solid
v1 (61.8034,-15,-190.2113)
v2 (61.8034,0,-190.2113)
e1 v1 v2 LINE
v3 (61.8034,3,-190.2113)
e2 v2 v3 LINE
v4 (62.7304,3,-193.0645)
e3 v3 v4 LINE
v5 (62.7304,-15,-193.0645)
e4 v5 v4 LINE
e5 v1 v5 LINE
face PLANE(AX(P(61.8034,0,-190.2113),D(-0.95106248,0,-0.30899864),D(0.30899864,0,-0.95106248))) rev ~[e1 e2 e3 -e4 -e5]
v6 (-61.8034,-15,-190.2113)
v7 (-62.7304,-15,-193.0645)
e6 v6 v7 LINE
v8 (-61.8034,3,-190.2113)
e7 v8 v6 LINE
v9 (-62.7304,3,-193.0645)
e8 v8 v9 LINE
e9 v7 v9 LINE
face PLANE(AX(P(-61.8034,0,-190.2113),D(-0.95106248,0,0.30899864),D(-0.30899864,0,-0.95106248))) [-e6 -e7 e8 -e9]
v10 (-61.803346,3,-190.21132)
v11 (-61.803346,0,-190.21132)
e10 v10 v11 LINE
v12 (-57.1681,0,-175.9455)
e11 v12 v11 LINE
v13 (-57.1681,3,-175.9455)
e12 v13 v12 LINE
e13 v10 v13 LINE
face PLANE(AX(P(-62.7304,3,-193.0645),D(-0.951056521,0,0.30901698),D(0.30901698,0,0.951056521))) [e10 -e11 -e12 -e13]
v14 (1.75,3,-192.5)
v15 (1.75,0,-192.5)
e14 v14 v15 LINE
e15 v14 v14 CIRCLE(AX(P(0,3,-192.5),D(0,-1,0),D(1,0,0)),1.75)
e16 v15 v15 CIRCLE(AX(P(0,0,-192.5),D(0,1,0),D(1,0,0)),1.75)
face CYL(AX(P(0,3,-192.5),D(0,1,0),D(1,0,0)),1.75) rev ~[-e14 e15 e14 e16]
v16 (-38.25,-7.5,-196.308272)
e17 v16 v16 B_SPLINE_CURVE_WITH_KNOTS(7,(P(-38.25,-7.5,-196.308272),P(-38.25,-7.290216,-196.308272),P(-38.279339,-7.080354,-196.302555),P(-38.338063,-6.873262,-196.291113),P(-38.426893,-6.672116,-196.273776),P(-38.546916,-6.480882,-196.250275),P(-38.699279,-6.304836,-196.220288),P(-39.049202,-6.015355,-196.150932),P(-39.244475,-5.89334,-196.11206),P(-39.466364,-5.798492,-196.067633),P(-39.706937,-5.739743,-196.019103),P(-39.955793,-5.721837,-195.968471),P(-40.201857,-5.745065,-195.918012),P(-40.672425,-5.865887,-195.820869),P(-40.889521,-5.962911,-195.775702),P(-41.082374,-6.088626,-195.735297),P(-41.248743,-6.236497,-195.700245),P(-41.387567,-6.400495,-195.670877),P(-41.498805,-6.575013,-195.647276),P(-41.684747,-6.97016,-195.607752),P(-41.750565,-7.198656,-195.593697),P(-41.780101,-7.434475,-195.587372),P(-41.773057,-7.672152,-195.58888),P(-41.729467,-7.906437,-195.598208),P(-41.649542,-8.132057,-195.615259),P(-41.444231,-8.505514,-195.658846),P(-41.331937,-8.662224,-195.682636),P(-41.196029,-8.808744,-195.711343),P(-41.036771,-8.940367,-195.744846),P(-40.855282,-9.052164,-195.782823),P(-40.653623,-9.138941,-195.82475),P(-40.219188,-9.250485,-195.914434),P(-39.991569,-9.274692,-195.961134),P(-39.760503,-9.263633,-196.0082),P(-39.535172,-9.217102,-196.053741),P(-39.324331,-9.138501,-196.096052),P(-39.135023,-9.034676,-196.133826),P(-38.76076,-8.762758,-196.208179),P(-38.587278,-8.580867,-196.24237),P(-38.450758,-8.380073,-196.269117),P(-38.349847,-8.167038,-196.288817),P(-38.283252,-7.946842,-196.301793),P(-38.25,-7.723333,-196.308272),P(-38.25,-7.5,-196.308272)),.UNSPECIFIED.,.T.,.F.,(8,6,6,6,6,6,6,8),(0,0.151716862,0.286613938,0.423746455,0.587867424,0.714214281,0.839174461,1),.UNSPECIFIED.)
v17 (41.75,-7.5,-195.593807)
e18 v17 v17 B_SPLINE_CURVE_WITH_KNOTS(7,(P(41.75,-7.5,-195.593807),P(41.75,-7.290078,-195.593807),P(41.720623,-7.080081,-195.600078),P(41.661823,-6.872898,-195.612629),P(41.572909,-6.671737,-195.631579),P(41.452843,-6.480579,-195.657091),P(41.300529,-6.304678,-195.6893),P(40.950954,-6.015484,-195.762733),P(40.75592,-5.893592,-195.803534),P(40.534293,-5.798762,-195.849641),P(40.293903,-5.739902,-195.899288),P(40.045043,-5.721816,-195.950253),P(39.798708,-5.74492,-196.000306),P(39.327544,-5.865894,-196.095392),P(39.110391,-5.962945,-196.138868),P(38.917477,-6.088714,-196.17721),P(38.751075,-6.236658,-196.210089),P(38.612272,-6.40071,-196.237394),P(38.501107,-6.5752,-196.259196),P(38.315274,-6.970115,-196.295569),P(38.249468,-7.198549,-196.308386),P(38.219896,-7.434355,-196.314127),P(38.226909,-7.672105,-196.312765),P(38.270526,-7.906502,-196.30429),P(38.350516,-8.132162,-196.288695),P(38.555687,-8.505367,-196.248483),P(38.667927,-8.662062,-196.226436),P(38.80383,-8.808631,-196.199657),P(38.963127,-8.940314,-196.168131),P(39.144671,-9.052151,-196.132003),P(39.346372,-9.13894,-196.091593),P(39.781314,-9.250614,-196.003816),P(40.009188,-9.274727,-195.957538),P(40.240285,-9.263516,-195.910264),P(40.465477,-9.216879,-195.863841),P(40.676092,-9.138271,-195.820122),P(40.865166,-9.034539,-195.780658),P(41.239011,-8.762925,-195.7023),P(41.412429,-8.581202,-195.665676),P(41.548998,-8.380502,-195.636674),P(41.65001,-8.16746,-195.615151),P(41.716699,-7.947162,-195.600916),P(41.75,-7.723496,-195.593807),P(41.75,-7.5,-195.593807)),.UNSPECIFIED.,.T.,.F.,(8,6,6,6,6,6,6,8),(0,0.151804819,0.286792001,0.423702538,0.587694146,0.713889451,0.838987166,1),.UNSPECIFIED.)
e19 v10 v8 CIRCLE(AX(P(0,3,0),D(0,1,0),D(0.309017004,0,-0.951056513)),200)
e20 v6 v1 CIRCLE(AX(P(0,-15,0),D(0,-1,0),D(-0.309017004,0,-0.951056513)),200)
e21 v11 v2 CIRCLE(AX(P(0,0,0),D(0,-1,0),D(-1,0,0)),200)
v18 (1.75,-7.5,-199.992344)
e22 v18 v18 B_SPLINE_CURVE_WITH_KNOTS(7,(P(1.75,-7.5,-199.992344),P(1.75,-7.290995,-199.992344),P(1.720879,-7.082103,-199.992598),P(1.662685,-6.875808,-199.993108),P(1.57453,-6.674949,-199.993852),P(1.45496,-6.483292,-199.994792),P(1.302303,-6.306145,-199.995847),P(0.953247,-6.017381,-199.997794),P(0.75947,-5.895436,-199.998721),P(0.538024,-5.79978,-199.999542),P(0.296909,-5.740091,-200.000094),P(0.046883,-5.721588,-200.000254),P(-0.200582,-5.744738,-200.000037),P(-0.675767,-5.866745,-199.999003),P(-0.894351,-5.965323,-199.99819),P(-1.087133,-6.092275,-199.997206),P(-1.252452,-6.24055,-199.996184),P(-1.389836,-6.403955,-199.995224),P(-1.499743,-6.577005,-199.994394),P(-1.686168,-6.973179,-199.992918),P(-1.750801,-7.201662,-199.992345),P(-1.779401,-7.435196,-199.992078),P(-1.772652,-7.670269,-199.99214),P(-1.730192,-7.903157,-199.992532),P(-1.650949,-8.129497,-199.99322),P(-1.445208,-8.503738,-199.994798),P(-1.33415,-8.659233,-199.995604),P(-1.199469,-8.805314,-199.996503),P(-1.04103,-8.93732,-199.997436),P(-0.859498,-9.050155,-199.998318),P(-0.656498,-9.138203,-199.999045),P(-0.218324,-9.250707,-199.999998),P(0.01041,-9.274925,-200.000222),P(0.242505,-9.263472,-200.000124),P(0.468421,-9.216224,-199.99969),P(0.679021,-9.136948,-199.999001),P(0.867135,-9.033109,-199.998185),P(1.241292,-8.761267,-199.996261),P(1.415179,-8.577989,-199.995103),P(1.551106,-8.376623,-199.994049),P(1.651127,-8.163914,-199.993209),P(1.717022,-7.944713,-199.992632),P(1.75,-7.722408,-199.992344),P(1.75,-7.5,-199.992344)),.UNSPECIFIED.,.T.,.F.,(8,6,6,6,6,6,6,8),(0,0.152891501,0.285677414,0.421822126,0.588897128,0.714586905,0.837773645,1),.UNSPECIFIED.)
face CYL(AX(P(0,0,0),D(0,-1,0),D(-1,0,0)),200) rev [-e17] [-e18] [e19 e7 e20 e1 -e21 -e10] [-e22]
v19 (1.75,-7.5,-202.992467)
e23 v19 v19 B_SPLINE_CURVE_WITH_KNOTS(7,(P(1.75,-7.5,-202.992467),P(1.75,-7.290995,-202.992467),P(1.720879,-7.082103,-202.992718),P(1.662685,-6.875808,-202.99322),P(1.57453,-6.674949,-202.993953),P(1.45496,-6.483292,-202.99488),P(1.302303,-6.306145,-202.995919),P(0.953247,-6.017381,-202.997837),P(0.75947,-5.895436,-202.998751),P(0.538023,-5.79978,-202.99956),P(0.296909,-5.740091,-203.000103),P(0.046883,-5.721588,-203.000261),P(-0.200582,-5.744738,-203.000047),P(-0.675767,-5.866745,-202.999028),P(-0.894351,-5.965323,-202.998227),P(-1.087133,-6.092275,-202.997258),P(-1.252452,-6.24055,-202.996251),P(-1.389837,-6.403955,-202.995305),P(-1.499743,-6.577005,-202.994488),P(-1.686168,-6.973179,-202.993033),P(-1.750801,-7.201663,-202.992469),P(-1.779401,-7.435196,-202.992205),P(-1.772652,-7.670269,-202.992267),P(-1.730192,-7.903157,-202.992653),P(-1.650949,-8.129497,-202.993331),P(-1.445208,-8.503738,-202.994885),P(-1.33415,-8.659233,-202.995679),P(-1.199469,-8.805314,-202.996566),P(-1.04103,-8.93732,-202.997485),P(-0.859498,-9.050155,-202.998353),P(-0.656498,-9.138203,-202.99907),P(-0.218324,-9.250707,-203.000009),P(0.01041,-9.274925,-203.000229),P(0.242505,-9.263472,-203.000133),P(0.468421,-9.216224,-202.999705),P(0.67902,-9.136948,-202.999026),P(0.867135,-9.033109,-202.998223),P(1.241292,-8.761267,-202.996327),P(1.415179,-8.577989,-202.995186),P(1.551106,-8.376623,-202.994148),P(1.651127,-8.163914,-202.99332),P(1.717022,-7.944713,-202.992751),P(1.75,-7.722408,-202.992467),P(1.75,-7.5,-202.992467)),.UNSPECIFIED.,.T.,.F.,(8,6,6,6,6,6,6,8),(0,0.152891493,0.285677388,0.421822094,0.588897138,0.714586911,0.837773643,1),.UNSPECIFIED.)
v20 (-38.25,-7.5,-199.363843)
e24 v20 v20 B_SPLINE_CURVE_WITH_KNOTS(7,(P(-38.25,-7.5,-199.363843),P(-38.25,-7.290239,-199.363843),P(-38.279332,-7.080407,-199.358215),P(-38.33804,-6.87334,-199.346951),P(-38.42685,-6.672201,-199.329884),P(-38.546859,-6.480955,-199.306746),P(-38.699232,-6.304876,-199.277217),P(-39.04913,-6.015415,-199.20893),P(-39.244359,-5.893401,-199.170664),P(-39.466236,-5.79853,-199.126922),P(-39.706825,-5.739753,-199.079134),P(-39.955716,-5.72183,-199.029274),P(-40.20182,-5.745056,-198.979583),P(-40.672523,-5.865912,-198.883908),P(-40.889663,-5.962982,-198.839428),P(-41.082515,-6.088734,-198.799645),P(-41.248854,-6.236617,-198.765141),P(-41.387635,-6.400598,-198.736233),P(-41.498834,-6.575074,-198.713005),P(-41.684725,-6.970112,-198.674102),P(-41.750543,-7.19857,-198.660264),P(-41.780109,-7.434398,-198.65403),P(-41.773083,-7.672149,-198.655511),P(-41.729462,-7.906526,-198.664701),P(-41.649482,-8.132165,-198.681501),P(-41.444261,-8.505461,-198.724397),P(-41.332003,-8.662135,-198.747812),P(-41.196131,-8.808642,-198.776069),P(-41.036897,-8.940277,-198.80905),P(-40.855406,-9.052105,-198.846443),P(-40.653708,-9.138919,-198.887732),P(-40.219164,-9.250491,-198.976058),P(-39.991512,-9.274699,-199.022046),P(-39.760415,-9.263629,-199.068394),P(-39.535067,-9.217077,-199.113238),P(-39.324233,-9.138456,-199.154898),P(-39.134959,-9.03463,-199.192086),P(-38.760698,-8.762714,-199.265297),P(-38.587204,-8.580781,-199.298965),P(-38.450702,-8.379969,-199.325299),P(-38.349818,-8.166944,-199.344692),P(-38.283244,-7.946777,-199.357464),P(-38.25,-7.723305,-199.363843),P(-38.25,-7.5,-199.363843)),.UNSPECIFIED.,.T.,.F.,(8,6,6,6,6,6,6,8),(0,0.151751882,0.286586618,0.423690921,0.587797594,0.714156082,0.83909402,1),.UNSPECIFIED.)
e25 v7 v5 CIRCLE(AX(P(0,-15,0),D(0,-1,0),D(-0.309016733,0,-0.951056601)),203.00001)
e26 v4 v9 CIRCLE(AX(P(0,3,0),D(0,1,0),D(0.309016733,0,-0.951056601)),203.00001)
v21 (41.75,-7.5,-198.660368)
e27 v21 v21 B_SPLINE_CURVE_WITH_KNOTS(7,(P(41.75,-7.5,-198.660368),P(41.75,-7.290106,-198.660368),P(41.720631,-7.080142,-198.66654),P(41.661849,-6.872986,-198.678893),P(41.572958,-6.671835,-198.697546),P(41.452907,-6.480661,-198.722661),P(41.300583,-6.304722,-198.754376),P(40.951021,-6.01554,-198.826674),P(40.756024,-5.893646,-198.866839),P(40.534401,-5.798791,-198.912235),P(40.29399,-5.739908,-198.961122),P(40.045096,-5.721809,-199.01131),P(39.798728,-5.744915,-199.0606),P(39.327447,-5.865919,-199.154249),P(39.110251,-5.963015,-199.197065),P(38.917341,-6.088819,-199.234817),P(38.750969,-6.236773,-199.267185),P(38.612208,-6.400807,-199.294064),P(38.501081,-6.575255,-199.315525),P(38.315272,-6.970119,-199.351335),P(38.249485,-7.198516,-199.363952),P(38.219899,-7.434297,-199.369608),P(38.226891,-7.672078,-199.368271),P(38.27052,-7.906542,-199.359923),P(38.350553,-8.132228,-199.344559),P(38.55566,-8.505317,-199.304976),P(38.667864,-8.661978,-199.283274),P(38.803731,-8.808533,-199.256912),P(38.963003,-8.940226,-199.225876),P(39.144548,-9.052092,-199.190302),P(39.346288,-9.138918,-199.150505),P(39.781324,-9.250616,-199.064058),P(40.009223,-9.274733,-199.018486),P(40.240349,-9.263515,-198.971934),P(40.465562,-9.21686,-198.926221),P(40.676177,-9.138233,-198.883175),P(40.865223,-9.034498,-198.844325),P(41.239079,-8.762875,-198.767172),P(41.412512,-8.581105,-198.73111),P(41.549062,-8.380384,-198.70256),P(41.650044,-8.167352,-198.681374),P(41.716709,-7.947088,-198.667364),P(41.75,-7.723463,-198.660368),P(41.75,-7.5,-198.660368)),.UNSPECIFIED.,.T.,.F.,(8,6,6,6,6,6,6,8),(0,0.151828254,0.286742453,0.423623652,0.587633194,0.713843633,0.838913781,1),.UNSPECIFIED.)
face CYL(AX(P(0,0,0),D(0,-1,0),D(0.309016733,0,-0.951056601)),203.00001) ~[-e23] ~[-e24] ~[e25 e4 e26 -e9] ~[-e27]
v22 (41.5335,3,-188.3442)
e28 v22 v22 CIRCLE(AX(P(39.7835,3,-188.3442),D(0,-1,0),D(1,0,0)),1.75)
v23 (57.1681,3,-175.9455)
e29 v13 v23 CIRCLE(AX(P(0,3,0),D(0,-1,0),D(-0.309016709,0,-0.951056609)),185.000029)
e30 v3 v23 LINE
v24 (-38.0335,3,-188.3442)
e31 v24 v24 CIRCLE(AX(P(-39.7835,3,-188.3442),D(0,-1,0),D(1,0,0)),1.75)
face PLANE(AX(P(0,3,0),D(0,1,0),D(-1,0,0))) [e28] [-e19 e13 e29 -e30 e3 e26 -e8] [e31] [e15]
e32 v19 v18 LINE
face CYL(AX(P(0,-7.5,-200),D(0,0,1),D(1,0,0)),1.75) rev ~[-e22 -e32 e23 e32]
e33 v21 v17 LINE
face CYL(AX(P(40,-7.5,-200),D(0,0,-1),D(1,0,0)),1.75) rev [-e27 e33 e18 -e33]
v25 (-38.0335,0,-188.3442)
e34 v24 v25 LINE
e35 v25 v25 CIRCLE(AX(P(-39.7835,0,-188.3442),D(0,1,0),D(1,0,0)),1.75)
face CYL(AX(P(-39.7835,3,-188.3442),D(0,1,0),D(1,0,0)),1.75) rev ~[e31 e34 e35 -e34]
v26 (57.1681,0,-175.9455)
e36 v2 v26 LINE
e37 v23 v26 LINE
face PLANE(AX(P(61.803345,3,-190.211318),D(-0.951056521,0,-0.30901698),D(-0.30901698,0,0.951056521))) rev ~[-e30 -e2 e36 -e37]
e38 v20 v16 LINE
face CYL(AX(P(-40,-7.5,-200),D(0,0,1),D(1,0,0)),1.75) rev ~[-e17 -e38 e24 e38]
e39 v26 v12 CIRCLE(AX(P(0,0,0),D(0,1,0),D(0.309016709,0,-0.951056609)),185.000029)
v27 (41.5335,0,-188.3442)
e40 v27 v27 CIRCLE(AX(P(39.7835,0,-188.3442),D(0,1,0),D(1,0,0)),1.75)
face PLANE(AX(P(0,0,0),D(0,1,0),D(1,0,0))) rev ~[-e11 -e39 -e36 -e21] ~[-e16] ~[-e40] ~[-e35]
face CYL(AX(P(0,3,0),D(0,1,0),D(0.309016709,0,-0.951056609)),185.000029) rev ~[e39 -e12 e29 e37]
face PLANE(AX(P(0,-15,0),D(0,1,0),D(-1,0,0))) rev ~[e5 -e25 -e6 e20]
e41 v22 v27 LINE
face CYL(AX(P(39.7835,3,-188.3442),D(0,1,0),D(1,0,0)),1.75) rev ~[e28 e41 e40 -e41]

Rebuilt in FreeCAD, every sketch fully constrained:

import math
import FreeCAD as App
import Part
import Sketcher
Q = App.Units.Quantity

doc = App.newDocument("Part")
body = doc.addObject("PartDesign::Body", "Body")

sketch1 = body.newObject("Sketcher::SketchObject", "Sketch")
sketch1.AttachmentSupport = (doc.getObject("XZ_Plane"), [""])
sketch1.MapMode = "FlatFace"
sketch1.addGeometry(Part.LineSegment(App.Vector(61.8, -190.2, 0), App.Vector(62.7, -193.1, 0)), False)
sketch1.addGeometry(Part.ArcOfCircle(Part.Circle(App.Vector(0, 0, 0), App.Vector(0, 0, 1), 203), math.radians(-108), math.radians(-72)), False)
sketch1.addGeometry(Part.LineSegment(App.Vector(-62.7, -193.1, 0), App.Vector(-61.8, -190.2, 0)), False)
sketch1.addGeometry(Part.ArcOfCircle(Part.Circle(App.Vector(0, 0, 0), App.Vector(0, 0, 1), 200), math.radians(-108), math.radians(-72)), False)
sketch1.addConstraint(Sketcher.Constraint("Coincident", 0, 2, 1, 2))
sketch1.addConstraint(Sketcher.Constraint("Coincident", 1, 1, 2, 1))
sketch1.addConstraint(Sketcher.Constraint("Coincident", 2, 2, 3, 1))
sketch1.addConstraint(Sketcher.Constraint("Coincident", 3, 2, 0, 1))
sketch1.addConstraint(Sketcher.Constraint("Coincident", 1, 3, -1, 1))
sketch1.addConstraint(Sketcher.Constraint("Coincident", 3, 3, -1, 1))
sketch1.addConstraint(Sketcher.Constraint("Horizontal", 0, 2, 1, 1))
sketch1.addConstraint(Sketcher.Constraint("Horizontal", 2, 2, 3, 2))
sketch1.addConstraint(Sketcher.Constraint("Radius", 3, 200.0))
sketch1.addConstraint(Sketcher.Constraint("Distance", 0, 3.0))
sketch1.addConstraint(Sketcher.Constraint("Angle", 0, Q("-72.001 deg")))
sketch1.addConstraint(Sketcher.Constraint("DistanceX", -1, 1, 0, 2, 62.7304))
pad1 = body.newObject("PartDesign::Pad", "Pad")
pad1.Profile = sketch1
pad1.Type = "TwoLengths"
pad1.Length = 3
pad1.Length2 = 15
pad1.Reversed = True

sketch2 = body.newObject("Sketcher::SketchObject", "Sketch001")
sketch2.AttachmentSupport = (doc.getObject("XZ_Plane"), [""])
sketch2.MapMode = "FlatFace"
sketch2.AttachmentOffset = App.Placement(App.Vector(0, 0, -3), App.Rotation())
sketch2.addGeometry(Part.LineSegment(App.Vector(61.8, -190.2, 0), App.Vector(62.7, -193.1, 0)), False)
sketch2.addGeometry(Part.ArcOfCircle(Part.Circle(App.Vector(0, 0, 0), App.Vector(0, 0, 1), 203), math.radians(-108), math.radians(-72)), False)
sketch2.addGeometry(Part.LineSegment(App.Vector(-62.7, -193.1, 0), App.Vector(-57.2, -175.9, 0)), False)
sketch2.addGeometry(Part.ArcOfCircle(Part.Circle(App.Vector(0, 0, 0), App.Vector(0, 0, 1), 185), math.radians(-108), math.radians(-72)), False)
sketch2.addGeometry(Part.LineSegment(App.Vector(57.2, -175.9, 0), App.Vector(61.8, -190.2, 0)), False)
sketch2.addConstraint(Sketcher.Constraint("Coincident", 0, 2, 1, 2))
sketch2.addConstraint(Sketcher.Constraint("Coincident", 1, 1, 2, 1))
sketch2.addConstraint(Sketcher.Constraint("Coincident", 2, 2, 3, 1))
sketch2.addConstraint(Sketcher.Constraint("Coincident", 3, 2, 4, 1))
sketch2.addConstraint(Sketcher.Constraint("Coincident", 4, 2, 0, 1))
sketch2.addConstraint(Sketcher.Constraint("Coincident", 1, 3, -1, 1))
sketch2.addConstraint(Sketcher.Constraint("Coincident", 3, 3, -1, 1))
sketch2.addConstraint(Sketcher.Constraint("Parallel", 0, 4))
sketch2.addConstraint(Sketcher.Constraint("Horizontal", 0, 2, 1, 1))
sketch2.addConstraint(Sketcher.Constraint("Horizontal", 2, 2, 3, 2))
sketch2.addConstraint(Sketcher.Constraint("Distance", 2, 18.0))
sketch2.addConstraint(Sketcher.Constraint("Radius", 1, 203.0))
sketch2.addConstraint(Sketcher.Constraint("Angle", 0, Q("-72.001 deg")))
sketch2.addConstraint(Sketcher.Constraint("Distance", 0, 3.0))
sketch2.addConstraint(Sketcher.Constraint("DistanceX", 2, 2, -1, 1, 57.168))
pad2 = body.newObject("PartDesign::Pad", "Pad001")
pad2.Profile = sketch2
pad2.Length = 3

sketch3 = body.newObject("Sketcher::SketchObject", "Sketch002")
sketch3.AttachmentSupport = (doc.getObject("XZ_Plane"), [""])
sketch3.MapMode = "FlatFace"
sketch3.AttachmentOffset = App.Placement(App.Vector(0, 0, -3), App.Rotation())
sketch3.addGeometry(Part.Circle(App.Vector(0, -192.5, 0), App.Vector(0, 0, 1), 1.8), False)
sketch3.addGeometry(Part.Circle(App.Vector(39.8, -188.3, 0), App.Vector(0, 0, 1), 1.8), False)
sketch3.addGeometry(Part.Circle(App.Vector(-39.8, -188.3, 0), App.Vector(0, 0, 1), 1.8), False)
sketch3.addConstraint(Sketcher.Constraint("Equal", 0, 1))
sketch3.addConstraint(Sketcher.Constraint("Equal", 1, 2))
sketch3.addConstraint(Sketcher.Constraint("Symmetric", 1, 3, 2, 3, -2))
sketch3.addConstraint(Sketcher.Constraint("PointOnObject", 0, 3, -2))
sketch3.addConstraint(Sketcher.Constraint("Diameter", 0, 3.5))
sketch3.addConstraint(Sketcher.Constraint("DistanceY", 0, 3, -1, 1, 192.5))
sketch3.addConstraint(Sketcher.Constraint("DistanceX", 2, 3, 1, 3, 79.567))
sketch3.addConstraint(Sketcher.Constraint("DistanceY", 1, 3, -1, 1, 188.3442))
pocket1 = body.newObject("PartDesign::Pocket", "Pocket")
pocket1.Profile = sketch3
pocket1.Length = 3
pocket1.Reversed = True

sketch4 = body.newObject("Sketcher::SketchObject", "Sketch003")
sketch4.AttachmentSupport = (doc.getObject("XY_Plane"), [""])
sketch4.MapMode = "FlatFace"
sketch4.AttachmentOffset = App.Placement(App.Vector(0, 0, -200), App.Rotation())
sketch4.addGeometry(Part.Circle(App.Vector(0, -7.5, 0), App.Vector(0, 0, 1), 1.8), False)
sketch4.addGeometry(Part.Circle(App.Vector(40, -7.5, 0), App.Vector(0, 0, 1), 1.8), False)
sketch4.addGeometry(Part.Circle(App.Vector(-40, -7.5, 0), App.Vector(0, 0, 1), 1.8), False)
sketch4.addConstraint(Sketcher.Constraint("Equal", 0, 1))
sketch4.addConstraint(Sketcher.Constraint("Equal", 1, 2))
sketch4.addConstraint(Sketcher.Constraint("Symmetric", 1, 3, 2, 3, -2))
sketch4.addConstraint(Sketcher.Constraint("PointOnObject", 0, 3, -2))
sketch4.addConstraint(Sketcher.Constraint("Horizontal", 0, 3, 1, 3))
sketch4.addConstraint(Sketcher.Constraint("Diameter", 0, 3.5))
sketch4.addConstraint(Sketcher.Constraint("DistanceX", -1, 1, 1, 3, 40.0))
sketch4.addConstraint(Sketcher.Constraint("DistanceY", 0, 3, -1, 1, 7.5))
pocket2 = body.newObject("PartDesign::Pocket", "Pocket001")
pocket2.Profile = sketch4
pocket2.Length = 10
pocket2.Midplane = True

doc.recompute()
